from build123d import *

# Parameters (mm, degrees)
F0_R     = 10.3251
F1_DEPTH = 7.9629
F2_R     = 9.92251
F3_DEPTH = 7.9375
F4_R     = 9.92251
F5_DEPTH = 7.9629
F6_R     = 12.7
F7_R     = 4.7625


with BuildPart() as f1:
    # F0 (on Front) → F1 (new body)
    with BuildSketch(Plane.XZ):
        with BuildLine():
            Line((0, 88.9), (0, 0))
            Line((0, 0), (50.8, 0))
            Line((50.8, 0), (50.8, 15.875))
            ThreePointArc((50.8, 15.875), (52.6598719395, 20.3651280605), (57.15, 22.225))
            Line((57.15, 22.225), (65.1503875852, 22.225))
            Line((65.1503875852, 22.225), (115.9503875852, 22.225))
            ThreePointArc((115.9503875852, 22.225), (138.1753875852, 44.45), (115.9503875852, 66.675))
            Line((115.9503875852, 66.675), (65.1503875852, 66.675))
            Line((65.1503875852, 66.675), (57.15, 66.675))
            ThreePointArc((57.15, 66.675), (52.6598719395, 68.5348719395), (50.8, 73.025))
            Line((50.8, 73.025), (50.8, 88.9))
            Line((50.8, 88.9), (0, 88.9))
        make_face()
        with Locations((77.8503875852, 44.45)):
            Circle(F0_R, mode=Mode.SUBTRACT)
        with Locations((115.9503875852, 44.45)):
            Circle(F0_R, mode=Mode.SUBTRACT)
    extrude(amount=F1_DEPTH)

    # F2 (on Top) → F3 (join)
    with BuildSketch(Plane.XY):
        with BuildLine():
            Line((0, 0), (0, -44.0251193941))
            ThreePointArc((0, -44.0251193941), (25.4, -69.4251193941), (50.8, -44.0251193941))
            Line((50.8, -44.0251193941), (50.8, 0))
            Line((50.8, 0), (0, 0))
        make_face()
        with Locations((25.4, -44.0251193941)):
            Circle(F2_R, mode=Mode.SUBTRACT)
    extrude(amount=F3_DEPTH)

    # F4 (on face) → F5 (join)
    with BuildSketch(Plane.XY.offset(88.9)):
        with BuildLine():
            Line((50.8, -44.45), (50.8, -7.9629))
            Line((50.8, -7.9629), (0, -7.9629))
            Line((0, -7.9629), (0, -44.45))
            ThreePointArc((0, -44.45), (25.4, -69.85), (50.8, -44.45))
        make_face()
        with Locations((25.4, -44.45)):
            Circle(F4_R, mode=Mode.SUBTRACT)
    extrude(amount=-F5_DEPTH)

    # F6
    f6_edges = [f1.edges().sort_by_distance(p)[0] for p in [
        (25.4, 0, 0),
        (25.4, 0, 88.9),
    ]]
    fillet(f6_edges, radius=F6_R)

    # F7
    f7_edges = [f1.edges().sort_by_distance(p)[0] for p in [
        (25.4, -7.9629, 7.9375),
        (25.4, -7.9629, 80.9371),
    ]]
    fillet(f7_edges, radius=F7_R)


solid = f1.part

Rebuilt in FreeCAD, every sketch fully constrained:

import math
import FreeCAD as App
import Part
import Sketcher

V = App.Vector
Q = App.Units.Quantity


def edges_at(feature, points):
    """Names of the edges that pass closest to the given points."""
    edges = feature.Shape.Edges
    near = lambda p: min(range(len(edges)), key=lambda i: edges[i].distToShape(Part.Vertex(*p))[0])
    return sorted({f"Edge{near(p) + 1}" for p in points})

doc = App.newDocument("Part")
body = doc.addObject("PartDesign::Body", "Body")

# Sketch on XZ plane
sketch1 = body.newObject("Sketcher::SketchObject", "Sketch")
sketch1.AttachmentSupport = (doc.getObject("XZ_Plane"), [""])
sketch1.MapMode = "FlatFace"
sketch1.addGeometry(Part.LineSegment(V(0, 89, 0), V(0, 0, 0)), False)
sketch1.addGeometry(Part.LineSegment(V(0, 0, 0), V(51, 0, 0)), False)
sketch1.addGeometry(Part.LineSegment(V(51, 0, 0), V(51, 16, 0)), False)
sketch1.addGeometry(Part.ArcOfCircle(Part.Circle(V(57, 16, 0), V(0, 0, 1), 6), math.radians(90), math.radians(180)), False)
sketch1.addGeometry(Part.LineSegment(V(57, 22, 0), V(116, 22, 0)), False)
sketch1.addGeometry(Part.ArcOfCircle(Part.Circle(V(116, 44, 0), V(0, 0, 1), 22), math.radians(-90), math.radians(90)), False)
sketch1.addGeometry(Part.LineSegment(V(116, 67, 0), V(57, 67, 0)), False)
sketch1.addGeometry(Part.ArcOfCircle(Part.Circle(V(57, 73, 0), V(0, 0, 1), 6), math.radians(180), math.radians(270)), False)
sketch1.addGeometry(Part.LineSegment(V(51, 73, 0), V(51, 89, 0)), False)
sketch1.addGeometry(Part.LineSegment(V(51, 89, 0), V(0, 89, 0)), False)
sketch1.addGeometry(Part.Circle(V(78, 44, 0), V(0, 0, 1), 10), False)
sketch1.addGeometry(Part.Circle(V(116, 44, 0), V(0, 0, 1), 10), False)
sketch1.addConstraint(Sketcher.Constraint("Coincident", 0, 2, 1, 1))
sketch1.addConstraint(Sketcher.Constraint("Coincident", 1, 2, 2, 1))
sketch1.addConstraint(Sketcher.Constraint("Tangent", 2, 2, 3, 2))
sketch1.addConstraint(Sketcher.Constraint("Tangent", 3, 1, 4, 1))
sketch1.addConstraint(Sketcher.Constraint("Tangent", 4, 2, 5, 1))
sketch1.addConstraint(Sketcher.Constraint("Tangent", 5, 2, 6, 1))
sketch1.addConstraint(Sketcher.Constraint("Tangent", 6, 2, 7, 2))
sketch1.addConstraint(Sketcher.Constraint("Tangent", 7, 1, 8, 1))
sketch1.addConstraint(Sketcher.Constraint("Coincident", 8, 2, 9, 1))
sketch1.addConstraint(Sketcher.Constraint("Coincident", 9, 2, 0, 1))
sketch1.addConstraint(Sketcher.Constraint("Vertical", 0))
sketch1.addConstraint(Sketcher.Constraint("Horizontal", 1))
sketch1.addConstraint(Sketcher.Constraint("Vertical", 2))
sketch1.addConstraint(Sketcher.Constraint("Horizontal", 4))
sketch1.addConstraint(Sketcher.Constraint("Horizontal", 6))
sketch1.addConstraint(Sketcher.Constraint("Vertical", 8))
sketch1.addConstraint(Sketcher.Constraint("Horizontal", 9))
sketch1.addConstraint(Sketcher.Constraint("Coincident", 0, 2, -1, 1))
sketch1.addConstraint(Sketcher.Constraint("Coincident", 11, 3, 5, 3))
sketch1.addConstraint(Sketcher.Constraint("Equal", 3, 7))
sketch1.addConstraint(Sketcher.Constraint("Equal", 10, 11))
sketch1.addConstraint(Sketcher.Constraint("Horizontal", 5, 3, 10, 3))
sketch1.addConstraint(Sketcher.Constraint("Vertical", 3, 3, 7, 3))
sketch1.addConstraint(Sketcher.Constraint("Equal", 2, 8))
sketch1.addConstraint(Sketcher.Constraint("DistanceX", 1, 1, 1, 2, Q("2 in")))
sketch1.addConstraint(Sketcher.Constraint("Radius", 3, Q("0.25 in")))
sketch1.addConstraint(Sketcher.Constraint("Diameter", 10, Q("0.813 in")))
sketch1.addConstraint(Sketcher.Constraint("DistanceY", 0, 2, 0, 1, Q("3.5 in")))
sketch1.addConstraint(Sketcher.Constraint("Radius", 5, Q("0.875 in")))
sketch1.addConstraint(Sketcher.Constraint("DistanceX", 10, 3, 5, 3, Q("1.5 in")))
sketch1.addConstraint(Sketcher.Constraint("DistanceX", 4, 1, 4, 2, 58.800388))
pad1 = body.newObject("PartDesign::Pad", "Pad")
pad1.Profile = sketch1
pad1.Length = Q("0.3135 in")

# Sketch on XY plane
sketch2 = body.newObject("Sketcher::SketchObject", "Sketch001")
sketch2.AttachmentSupport = (doc.getObject("XY_Plane"), [""])
sketch2.MapMode = "FlatFace"
sketch2.addGeometry(Part.LineSegment(V(0, 0, 0), V(0, -44, 0)), False)
sketch2.addGeometry(Part.ArcOfCircle(Part.Circle(V(25, -44, 0), V(0, 0, 1), 25), math.radians(180), math.radians(360)), False)
sketch2.addGeometry(Part.LineSegment(V(51, -44, 0), V(51, 0, 0)), False)
sketch2.addGeometry(Part.LineSegment(V(51, 0, 0), V(0, 0, 0)), False)
sketch2.addGeometry(Part.Circle(V(25, -44, 0), V(0, 0, 1), 10), False)
sketch2.addConstraint(Sketcher.Constraint("Tangent", 0, 2, 1, 1))
sketch2.addConstraint(Sketcher.Constraint("Tangent", 1, 2, 2, 1))
sketch2.addConstraint(Sketcher.Constraint("Coincident", 2, 2, 3, 1))
sketch2.addConstraint(Sketcher.Constraint("Coincident", 3, 2, 0, 1))
sketch2.addConstraint(Sketcher.Constraint("Vertical", 0))
sketch2.addConstraint(Sketcher.Constraint("Vertical", 2))
sketch2.addConstraint(Sketcher.Constraint("Horizontal", 3))
sketch2.addConstraint(Sketcher.Constraint("Coincident", 3, 2, -1, 1))
sketch2.addConstraint(Sketcher.Constraint("Coincident", 4, 3, 1, 3))
sketch2.addConstraint(Sketcher.Constraint("Radius", 1, Q("1 in")))
sketch2.addConstraint(Sketcher.Constraint("Diameter", 4, Q("0.7813 in")))
sketch2.addConstraint(Sketcher.Constraint("DistanceY", 0, 2, 0, 1, 44.025119))
pad2 = body.newObject("PartDesign::Pad", "Pad001")
pad2.Profile = sketch2
pad2.Length = Q("0.3125 in")

# Sketch on XY plane
sketch3 = body.newObject("Sketcher::SketchObject", "Sketch002")
sketch3.AttachmentSupport = (doc.getObject("XY_Plane"), [""])
sketch3.MapMode = "FlatFace"
sketch3.AttachmentOffset = App.Placement(V(0, 0, 3.5 * 25.4), App.Rotation())
sketch3.addGeometry(Part.LineSegment(V(51, -44, 0), V(51, -8, 0)), False)
sketch3.addGeometry(Part.LineSegment(V(51, -8, 0), V(0, -8, 0)), False)
sketch3.addGeometry(Part.LineSegment(V(0, -8, 0), V(0, -44, 0)), False)
sketch3.addGeometry(Part.ArcOfCircle(Part.Circle(V(25, -44, 0), V(0, 0, 1), 25), math.radians(180), math.radians(360)), False)
sketch3.addGeometry(Part.Circle(V(25, -44, 0), V(0, 0, 1), 10), False)
sketch3.addConstraint(Sketcher.Constraint("Coincident", 0, 2, 1, 1))
sketch3.addConstraint(Sketcher.Constraint("Coincident", 1, 2, 2, 1))
sketch3.addConstraint(Sketcher.Constraint("Tangent", 2, 2, 3, 1))
sketch3.addConstraint(Sketcher.Constraint("Tangent", 3, 2, 0, 1))
sketch3.addConstraint(Sketcher.Constraint("Vertical", 0))
sketch3.addConstraint(Sketcher.Constraint("Horizontal", 1))
sketch3.addConstraint(Sketcher.Constraint("Vertical", 2))
sketch3.addConstraint(Sketcher.Constraint("Coincident", 4, 3, 3, 3))
sketch3.addConstraint(Sketcher.Constraint("PointOnObject", 1, 2, -2))
sketch3.addConstraint(Sketcher.Constraint("Radius", 3, Q("1 in")))
sketch3.addConstraint(Sketcher.Constraint("Diameter", 4, Q("0.7813 in")))
sketch3.addConstraint(Sketcher.Constraint("DistanceY", 3, 3, -1, 1, Q("1.75 in")))
sketch3.addConstraint(Sketcher.Constraint("DistanceY", 0, 1, 0, 2, Q("1.4365 in")))
pad3 = body.newObject("PartDesign::Pad", "Pad002")
pad3.Profile = sketch3
pad3.Length = Q("0.3135 in")
pad3.Reversed = True
doc.recompute()

fillet = body.newObject("PartDesign::Fillet", "Fillet")
fillet.Base = (pad3, edges_at(pad3, [(25.4, 0, 0), (25.4, 0, 88.9)]))
fillet.Radius = Q("0.5 in")
doc.recompute()

fillet2 = body.newObject("PartDesign::Fillet", "Fillet001")
fillet2.Base = (fillet, edges_at(fillet, [(25.4, -7.963, 7.938), (25.4, -7.963, 80.937)]))
fillet2.Radius = Q("0.1875 in")

doc.recompute()
